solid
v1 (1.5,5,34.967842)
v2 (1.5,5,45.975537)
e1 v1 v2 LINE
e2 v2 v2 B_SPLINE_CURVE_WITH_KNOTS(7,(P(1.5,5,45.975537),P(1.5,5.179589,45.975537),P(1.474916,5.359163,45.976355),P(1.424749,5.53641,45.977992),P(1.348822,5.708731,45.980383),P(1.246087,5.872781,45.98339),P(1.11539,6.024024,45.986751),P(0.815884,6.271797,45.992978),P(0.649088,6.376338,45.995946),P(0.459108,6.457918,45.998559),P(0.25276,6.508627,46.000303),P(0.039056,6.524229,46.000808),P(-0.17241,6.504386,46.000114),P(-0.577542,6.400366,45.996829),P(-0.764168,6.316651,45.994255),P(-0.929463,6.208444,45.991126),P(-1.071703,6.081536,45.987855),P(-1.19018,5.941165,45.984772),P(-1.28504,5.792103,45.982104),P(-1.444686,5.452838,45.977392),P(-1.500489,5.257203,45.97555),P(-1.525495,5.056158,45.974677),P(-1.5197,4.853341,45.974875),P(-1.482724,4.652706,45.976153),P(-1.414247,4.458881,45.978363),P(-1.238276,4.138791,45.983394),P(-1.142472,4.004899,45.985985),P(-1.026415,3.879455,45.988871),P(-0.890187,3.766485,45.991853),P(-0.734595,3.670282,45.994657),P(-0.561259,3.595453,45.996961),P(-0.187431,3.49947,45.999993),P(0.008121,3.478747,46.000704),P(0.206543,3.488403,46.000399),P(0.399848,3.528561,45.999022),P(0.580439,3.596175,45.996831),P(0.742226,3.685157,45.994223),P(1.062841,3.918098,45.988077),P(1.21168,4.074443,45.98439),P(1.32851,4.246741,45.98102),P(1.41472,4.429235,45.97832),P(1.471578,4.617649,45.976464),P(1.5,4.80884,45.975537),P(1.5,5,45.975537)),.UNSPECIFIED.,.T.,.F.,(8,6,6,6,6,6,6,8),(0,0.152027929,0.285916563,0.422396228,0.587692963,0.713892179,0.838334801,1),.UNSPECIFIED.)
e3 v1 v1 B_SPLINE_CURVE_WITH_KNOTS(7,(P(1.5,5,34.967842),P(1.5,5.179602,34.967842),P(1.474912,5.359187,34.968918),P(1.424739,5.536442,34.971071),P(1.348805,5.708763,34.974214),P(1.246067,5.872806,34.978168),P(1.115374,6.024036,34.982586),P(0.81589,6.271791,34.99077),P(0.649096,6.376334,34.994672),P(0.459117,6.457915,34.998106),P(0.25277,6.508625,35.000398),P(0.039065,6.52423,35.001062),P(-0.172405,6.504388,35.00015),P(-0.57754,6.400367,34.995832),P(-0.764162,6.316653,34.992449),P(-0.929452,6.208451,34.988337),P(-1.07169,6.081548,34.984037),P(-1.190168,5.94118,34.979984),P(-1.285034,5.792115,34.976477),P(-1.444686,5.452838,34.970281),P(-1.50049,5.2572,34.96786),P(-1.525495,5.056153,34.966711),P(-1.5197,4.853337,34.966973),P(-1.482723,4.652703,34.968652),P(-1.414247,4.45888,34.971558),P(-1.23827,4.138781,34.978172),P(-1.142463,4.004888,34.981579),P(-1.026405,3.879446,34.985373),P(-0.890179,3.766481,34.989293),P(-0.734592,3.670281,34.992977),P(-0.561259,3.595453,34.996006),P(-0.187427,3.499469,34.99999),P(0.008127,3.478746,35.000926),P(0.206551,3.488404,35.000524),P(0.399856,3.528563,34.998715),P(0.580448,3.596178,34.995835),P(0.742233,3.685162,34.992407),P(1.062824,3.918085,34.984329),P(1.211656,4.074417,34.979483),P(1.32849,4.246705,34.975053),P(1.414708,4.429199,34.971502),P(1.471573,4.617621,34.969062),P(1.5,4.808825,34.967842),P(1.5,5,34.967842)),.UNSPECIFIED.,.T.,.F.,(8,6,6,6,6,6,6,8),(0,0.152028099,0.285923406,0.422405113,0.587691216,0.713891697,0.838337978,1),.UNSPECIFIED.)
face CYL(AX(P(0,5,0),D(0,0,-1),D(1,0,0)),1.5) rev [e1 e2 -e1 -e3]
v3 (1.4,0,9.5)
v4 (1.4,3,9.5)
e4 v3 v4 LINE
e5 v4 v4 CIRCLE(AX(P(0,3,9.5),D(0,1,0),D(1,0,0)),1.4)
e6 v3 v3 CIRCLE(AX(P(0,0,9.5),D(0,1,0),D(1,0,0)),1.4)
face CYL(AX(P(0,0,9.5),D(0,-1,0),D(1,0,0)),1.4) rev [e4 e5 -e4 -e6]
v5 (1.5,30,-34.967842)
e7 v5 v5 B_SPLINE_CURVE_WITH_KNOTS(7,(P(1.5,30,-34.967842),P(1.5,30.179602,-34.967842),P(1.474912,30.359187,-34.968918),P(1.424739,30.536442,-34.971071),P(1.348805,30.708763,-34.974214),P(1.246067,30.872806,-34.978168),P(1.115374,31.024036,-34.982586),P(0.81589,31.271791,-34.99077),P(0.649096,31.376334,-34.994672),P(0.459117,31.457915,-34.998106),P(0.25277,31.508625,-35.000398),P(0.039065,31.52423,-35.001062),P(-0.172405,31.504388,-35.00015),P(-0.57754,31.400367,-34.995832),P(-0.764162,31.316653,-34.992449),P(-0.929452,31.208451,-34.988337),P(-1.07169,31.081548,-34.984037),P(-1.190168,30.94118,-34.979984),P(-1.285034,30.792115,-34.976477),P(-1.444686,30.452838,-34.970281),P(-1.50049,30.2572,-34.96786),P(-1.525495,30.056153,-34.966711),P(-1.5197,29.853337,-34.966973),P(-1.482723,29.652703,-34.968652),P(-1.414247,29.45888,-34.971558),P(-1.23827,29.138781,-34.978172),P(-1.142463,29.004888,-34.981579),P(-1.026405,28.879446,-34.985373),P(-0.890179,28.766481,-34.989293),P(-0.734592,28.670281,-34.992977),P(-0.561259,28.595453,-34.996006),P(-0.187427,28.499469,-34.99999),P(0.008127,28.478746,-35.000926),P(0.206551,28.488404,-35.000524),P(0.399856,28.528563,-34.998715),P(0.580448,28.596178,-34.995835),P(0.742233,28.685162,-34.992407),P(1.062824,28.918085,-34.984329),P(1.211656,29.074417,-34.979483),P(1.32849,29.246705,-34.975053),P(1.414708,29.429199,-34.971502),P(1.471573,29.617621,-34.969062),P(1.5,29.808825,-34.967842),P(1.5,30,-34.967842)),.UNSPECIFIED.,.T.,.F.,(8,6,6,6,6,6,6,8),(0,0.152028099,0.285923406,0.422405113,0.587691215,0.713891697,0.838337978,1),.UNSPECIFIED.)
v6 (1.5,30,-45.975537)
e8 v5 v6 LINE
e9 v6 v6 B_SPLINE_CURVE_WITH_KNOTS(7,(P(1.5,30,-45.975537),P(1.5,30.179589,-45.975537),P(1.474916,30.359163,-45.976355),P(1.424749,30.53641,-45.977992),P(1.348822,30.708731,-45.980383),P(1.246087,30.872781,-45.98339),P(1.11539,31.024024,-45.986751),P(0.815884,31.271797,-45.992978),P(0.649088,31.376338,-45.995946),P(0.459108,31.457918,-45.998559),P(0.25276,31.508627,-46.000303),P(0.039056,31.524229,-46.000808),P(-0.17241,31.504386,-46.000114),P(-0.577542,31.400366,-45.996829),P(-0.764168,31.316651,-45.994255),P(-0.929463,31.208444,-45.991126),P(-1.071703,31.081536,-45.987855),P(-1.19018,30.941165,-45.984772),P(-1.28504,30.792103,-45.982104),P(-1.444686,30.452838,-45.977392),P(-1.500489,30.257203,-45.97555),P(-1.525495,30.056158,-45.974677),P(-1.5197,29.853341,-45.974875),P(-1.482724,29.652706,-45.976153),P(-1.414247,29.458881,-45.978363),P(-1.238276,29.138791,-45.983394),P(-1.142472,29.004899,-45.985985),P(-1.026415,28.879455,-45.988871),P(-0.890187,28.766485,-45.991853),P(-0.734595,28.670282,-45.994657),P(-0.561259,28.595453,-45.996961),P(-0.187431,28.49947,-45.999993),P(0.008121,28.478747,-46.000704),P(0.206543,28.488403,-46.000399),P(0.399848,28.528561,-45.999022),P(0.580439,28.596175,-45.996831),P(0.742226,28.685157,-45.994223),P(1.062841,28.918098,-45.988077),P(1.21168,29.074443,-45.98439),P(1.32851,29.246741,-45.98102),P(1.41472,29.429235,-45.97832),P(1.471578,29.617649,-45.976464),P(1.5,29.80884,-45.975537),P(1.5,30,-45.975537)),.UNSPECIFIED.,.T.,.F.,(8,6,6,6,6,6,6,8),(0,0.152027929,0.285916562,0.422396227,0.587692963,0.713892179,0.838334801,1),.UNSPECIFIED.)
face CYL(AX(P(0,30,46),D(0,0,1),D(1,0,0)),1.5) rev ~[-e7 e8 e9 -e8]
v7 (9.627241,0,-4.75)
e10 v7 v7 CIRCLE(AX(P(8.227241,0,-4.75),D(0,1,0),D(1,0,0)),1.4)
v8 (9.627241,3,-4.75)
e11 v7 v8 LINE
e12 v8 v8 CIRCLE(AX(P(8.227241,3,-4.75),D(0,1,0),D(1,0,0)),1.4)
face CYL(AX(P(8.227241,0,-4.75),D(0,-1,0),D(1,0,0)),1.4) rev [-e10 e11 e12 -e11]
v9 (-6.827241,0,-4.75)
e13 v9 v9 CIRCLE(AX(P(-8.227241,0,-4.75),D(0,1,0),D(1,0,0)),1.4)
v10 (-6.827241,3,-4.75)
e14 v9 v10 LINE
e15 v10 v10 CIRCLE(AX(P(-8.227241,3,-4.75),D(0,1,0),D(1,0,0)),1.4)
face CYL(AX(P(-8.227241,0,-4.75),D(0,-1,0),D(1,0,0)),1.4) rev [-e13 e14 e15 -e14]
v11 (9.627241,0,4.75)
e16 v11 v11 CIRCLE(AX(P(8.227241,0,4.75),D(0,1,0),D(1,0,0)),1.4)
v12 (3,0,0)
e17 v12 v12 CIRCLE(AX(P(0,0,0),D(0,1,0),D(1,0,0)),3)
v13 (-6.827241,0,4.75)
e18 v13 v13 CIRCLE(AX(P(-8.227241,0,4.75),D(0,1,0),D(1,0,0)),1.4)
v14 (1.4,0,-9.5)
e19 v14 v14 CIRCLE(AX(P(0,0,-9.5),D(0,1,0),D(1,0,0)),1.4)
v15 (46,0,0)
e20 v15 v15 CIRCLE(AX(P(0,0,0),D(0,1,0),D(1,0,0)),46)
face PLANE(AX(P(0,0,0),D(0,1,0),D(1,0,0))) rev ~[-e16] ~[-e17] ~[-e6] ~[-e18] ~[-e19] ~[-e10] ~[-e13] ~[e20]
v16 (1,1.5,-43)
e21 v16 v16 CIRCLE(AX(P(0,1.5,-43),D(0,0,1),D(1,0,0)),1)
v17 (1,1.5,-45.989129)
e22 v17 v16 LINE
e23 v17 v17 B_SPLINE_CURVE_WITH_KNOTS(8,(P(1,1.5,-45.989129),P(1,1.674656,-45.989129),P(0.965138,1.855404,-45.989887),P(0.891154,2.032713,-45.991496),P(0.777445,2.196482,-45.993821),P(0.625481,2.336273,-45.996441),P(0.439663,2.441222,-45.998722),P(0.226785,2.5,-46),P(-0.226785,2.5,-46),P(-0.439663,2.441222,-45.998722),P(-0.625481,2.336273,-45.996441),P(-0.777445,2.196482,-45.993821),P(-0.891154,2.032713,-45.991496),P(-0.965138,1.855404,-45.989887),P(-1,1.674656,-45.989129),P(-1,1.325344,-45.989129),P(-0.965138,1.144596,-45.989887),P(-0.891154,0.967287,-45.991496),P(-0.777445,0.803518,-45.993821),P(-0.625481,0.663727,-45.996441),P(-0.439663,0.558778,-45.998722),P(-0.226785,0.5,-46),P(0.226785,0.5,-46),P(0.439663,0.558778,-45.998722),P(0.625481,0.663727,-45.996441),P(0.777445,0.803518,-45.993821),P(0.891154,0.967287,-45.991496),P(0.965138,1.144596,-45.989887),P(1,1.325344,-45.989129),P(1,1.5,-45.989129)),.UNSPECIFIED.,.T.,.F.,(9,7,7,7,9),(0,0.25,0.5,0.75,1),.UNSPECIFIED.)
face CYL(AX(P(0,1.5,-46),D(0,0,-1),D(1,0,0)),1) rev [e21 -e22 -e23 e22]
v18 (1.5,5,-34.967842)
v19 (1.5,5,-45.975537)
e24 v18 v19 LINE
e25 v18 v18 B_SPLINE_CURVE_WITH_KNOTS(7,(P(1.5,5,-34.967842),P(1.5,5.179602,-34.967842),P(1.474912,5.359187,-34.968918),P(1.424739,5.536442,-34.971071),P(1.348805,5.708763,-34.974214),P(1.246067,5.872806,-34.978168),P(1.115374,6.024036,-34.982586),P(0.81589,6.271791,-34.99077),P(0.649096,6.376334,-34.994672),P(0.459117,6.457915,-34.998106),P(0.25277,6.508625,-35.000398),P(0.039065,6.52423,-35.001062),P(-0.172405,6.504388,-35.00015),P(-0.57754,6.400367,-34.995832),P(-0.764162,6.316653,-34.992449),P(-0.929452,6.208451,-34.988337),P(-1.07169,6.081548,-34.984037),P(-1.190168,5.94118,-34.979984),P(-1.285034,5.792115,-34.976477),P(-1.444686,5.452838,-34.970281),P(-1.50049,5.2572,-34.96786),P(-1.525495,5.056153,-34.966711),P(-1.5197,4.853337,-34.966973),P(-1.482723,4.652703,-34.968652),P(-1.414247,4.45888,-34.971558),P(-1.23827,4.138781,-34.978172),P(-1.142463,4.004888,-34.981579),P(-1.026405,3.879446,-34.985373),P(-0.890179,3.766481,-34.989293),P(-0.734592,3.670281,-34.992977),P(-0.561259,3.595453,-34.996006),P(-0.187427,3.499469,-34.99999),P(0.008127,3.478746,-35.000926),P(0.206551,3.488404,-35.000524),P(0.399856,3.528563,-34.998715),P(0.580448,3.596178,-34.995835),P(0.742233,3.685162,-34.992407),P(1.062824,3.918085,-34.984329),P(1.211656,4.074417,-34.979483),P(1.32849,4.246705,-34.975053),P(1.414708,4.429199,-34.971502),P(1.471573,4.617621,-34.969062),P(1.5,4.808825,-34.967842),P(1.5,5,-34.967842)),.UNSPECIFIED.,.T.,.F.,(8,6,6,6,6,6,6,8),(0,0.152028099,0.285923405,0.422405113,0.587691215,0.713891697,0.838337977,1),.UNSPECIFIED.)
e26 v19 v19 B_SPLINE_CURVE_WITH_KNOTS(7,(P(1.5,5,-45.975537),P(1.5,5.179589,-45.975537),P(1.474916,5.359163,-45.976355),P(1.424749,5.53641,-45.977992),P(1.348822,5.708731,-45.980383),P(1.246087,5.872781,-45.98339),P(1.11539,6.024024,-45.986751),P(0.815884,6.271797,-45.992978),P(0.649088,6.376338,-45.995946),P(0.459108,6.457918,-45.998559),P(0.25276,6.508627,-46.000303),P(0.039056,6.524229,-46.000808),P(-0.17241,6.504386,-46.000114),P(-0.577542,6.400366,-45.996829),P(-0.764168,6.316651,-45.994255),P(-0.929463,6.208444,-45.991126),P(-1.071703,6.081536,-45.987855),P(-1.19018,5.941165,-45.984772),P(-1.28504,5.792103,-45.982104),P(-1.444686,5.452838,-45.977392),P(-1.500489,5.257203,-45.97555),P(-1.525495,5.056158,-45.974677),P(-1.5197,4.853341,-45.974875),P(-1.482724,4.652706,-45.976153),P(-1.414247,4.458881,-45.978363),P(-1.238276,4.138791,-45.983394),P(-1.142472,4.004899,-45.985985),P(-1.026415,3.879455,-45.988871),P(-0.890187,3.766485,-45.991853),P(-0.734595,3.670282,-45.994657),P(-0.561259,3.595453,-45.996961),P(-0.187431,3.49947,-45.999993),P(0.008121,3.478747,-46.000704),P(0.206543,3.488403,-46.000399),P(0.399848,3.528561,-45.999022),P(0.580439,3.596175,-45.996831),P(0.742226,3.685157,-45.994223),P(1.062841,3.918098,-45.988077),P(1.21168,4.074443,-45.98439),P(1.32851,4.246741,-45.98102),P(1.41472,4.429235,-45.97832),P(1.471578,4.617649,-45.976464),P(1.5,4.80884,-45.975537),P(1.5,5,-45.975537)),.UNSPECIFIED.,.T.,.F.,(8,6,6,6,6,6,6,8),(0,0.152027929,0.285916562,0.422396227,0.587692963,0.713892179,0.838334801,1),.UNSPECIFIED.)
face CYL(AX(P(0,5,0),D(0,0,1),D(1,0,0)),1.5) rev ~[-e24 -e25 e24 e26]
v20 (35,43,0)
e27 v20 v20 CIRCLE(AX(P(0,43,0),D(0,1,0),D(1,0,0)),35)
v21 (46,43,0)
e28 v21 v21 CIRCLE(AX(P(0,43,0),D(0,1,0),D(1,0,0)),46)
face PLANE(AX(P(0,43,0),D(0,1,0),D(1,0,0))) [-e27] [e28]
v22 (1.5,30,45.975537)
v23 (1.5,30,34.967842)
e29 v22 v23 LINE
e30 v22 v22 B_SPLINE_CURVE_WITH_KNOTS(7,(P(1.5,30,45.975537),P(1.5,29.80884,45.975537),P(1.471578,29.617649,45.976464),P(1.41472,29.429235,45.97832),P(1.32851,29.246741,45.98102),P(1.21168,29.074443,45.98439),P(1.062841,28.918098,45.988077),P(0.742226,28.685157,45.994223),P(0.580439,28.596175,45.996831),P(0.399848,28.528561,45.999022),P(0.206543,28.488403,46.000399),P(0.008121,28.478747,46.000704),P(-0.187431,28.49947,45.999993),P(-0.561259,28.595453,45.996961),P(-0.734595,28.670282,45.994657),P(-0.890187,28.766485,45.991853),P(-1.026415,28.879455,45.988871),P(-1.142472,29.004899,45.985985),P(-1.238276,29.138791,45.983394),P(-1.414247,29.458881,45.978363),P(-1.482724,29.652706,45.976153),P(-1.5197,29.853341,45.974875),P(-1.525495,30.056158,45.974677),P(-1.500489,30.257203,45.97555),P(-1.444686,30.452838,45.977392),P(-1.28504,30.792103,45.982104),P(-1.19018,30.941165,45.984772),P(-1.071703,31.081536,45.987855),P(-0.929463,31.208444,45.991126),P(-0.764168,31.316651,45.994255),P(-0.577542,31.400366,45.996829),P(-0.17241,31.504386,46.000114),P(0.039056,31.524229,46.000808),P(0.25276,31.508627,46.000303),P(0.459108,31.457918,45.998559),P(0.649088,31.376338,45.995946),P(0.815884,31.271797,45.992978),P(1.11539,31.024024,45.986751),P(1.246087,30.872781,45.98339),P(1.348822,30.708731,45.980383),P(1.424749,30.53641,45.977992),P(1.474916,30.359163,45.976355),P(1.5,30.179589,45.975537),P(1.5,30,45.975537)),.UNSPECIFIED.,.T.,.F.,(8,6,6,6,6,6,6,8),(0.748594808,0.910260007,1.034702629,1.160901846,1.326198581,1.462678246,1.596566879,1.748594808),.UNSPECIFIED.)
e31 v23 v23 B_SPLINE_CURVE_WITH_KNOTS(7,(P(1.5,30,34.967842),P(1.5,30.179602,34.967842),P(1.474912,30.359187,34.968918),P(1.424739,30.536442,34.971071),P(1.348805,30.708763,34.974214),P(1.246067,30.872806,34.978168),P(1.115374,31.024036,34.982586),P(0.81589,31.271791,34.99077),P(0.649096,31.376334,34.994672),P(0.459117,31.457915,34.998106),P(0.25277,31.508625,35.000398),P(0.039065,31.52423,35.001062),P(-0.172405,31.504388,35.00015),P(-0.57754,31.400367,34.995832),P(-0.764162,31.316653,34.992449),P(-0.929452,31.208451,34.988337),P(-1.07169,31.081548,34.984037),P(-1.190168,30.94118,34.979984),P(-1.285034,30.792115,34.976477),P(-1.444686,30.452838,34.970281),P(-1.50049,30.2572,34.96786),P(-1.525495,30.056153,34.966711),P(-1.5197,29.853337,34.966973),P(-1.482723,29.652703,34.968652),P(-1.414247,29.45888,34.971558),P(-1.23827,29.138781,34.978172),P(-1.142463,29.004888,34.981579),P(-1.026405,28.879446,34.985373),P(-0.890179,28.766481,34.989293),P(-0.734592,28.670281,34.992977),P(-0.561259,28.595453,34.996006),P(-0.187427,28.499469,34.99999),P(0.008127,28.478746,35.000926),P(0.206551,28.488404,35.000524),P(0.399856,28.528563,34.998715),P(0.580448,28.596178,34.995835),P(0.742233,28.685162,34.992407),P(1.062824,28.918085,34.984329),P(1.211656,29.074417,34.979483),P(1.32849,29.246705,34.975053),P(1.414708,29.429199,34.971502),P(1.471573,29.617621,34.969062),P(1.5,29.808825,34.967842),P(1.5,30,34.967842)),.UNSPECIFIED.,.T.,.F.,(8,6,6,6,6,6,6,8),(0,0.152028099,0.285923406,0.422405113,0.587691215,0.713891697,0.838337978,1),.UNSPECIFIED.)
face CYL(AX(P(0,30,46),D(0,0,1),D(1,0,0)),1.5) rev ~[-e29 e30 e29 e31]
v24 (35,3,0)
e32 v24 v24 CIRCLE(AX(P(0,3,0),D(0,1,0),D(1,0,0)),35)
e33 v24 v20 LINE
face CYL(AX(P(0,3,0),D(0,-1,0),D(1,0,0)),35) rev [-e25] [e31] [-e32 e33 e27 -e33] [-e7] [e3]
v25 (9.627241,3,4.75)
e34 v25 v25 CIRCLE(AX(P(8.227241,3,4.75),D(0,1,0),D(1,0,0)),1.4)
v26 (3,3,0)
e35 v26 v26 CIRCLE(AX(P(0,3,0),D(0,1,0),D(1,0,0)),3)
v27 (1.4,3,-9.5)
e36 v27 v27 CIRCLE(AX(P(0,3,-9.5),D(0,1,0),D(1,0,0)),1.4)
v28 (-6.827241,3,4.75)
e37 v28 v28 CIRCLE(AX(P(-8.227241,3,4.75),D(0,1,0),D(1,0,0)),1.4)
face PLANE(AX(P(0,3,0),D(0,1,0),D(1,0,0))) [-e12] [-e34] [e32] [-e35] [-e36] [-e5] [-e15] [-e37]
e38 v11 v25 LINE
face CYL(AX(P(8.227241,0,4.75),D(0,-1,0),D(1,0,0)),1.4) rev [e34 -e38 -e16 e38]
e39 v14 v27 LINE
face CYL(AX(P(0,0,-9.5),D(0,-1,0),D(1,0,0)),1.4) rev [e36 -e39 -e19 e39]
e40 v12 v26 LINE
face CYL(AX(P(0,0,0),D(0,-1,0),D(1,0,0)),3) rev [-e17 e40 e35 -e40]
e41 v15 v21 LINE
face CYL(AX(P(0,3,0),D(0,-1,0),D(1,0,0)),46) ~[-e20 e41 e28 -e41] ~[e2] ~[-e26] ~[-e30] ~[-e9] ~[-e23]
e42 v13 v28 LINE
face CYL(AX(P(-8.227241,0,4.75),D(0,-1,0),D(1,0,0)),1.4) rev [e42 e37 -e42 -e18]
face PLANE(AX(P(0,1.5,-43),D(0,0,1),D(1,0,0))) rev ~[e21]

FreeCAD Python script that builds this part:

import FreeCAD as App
import Part
import Sketcher

V = App.Vector

doc = App.newDocument("Part")
body = doc.addObject("PartDesign::Body", "Body")

sketch1 = body.newObject("Sketcher::SketchObject", "Sketch")
sketch1.AttachmentSupport = (doc.getObject("XZ_Plane"), [""])
sketch1.MapMode = "FlatFace"
sketch1.addGeometry([
    Part.Circle(V(0, 0, 0), V(0, 0, 1), 46),
    Part.Circle(V(-8.227241, 4.75, 0), V(0, 0, 1), 1.4),
    Part.Circle(V(0, 9.5, 0), V(0, 0, 1), 1.4),
    Part.Circle(V(0, 0, 0), V(0, 0, 1), 3),
    Part.Circle(V(8.227241, 4.75, 0), V(0, 0, 1), 1.4),
    Part.Circle(V(-8.227241, -4.75, 0), V(0, 0, 1), 1.4),
    Part.Circle(V(8.227241, -4.75, 0), V(0, 0, 1), 1.4),
    Part.Circle(V(0, -9.5, 0), V(0, 0, 1), 1.4),
], False)
sketch1.addConstraint([
    Sketcher.Constraint("Coincident", 0, 3, -1, 1),
    Sketcher.Constraint("Coincident", 3, 3, -1, 1),
    Sketcher.Constraint("Equal", 1, 2),
    Sketcher.Constraint("Equal", 2, 4),
    Sketcher.Constraint("Equal", 4, 5),
    Sketcher.Constraint("Equal", 5, 6),
    Sketcher.Constraint("Equal", 6, 7),
    Sketcher.Constraint("Symmetric", 4, 3, 5, 3, -1, 1),
    Sketcher.Constraint("Symmetric", 1, 3, 6, 3, -1, 1),
    Sketcher.Constraint("Symmetric", 2, 3, 7, 3, -1, 1),
    Sketcher.Constraint("Symmetric", 1, 3, 4, 3, -2),
    Sketcher.Constraint("PointOnObject", 2, 3, -2),
    Sketcher.Constraint("Diameter", 0, 92.0),
    Sketcher.Constraint("Diameter", 3, 6.0),
    Sketcher.Constraint("Diameter", 1, 2.8),
    Sketcher.Constraint("DistanceY", -1, 1, 2, 3, 9.5),
    Sketcher.Constraint("DistanceY", 5, 3, 1, 3, 9.5),
    Sketcher.Constraint("DistanceX", 1, 3, -1, 1, 8.227241),
])
pad1 = body.newObject("PartDesign::Pad", "Pad")
pad1.Profile = sketch1
pad1.Length = 3
pad1.Reversed = True

sketch2 = body.newObject("Sketcher::SketchObject", "Sketch001")
sketch2.AttachmentSupport = (doc.getObject("XY_Plane"), [""])
sketch2.MapMode = "FlatFace"
sketch2.AttachmentOffset = App.Placement(V(0, 0, -46), App.Rotation())
sketch2.addGeometry(Part.Circle(V(0, 1.5, 0), V(0, 0, 1), 1), False)
sketch2.addConstraint([
    Sketcher.Constraint("PointOnObject", 0, 3, -2),
    Sketcher.Constraint("Diameter", 0, 2.0),
    Sketcher.Constraint("DistanceY", -1, 1, 0, 3, 1.5),
])
pocket1 = body.newObject("PartDesign::Pocket", "Pocket")
pocket1.Profile = sketch2
pocket1.Length = 3
pocket1.Reversed = True

sketch3 = body.newObject("Sketcher::SketchObject", "Sketch002")
sketch3.AttachmentSupport = (doc.getObject("XZ_Plane"), [""])
sketch3.MapMode = "FlatFace"
sketch3.AttachmentOffset = App.Placement(V(0, 0, -3), App.Rotation())
sketch3.addGeometry([
    Part.Circle(V(0, 0, 0), V(0, 0, 1), 46),
    Part.Circle(V(0, 0, 0), V(0, 0, 1), 35),
], False)
sketch3.addConstraint([
    Sketcher.Constraint("Coincident", 0, 3, -1, 1),
    Sketcher.Constraint("Coincident", 1, 3, -1, 1),
    Sketcher.Constraint("Diameter", 0, 92.0),
    Sketcher.Constraint("Diameter", 1, 70.0),
])
pad2 = body.newObject("PartDesign::Pad", "Pad001")
pad2.Profile = sketch3
pad2.Length = 40
pad2.Reversed = True

sketch4 = body.newObject("Sketcher::SketchObject", "Sketch003")
sketch4.AttachmentSupport = (doc.getObject("XY_Plane"), [""])
sketch4.MapMode = "FlatFace"
sketch4.AttachmentOffset = App.Placement(V(0, 0, 46), App.Rotation())
sketch4.addGeometry(Part.Circle(V(0, 30, 0), V(0, 0, 1), 1.5), False)
sketch4.addConstraint([
    Sketcher.Constraint("PointOnObject", 0, 3, -2),
    Sketcher.Constraint("Diameter", 0, 3.0),
    Sketcher.Constraint("DistanceY", -1, 1, 0, 3, 30.0),
])
pocket2 = body.newObject("PartDesign::Pocket", "Pocket001")
pocket2.Profile = sketch4
pocket2.Length = 108

sketch5 = body.newObject("Sketcher::SketchObject", "Sketch004")
sketch5.AttachmentSupport = (doc.getObject("XY_Plane"), [""])
sketch5.MapMode = "FlatFace"
sketch5.addGeometry(Part.Circle(V(0, 5, 0), V(0, 0, 1), 1.5), False)
sketch5.addConstraint([
    Sketcher.Constraint("PointOnObject", 0, 3, -2),
    Sketcher.Constraint("Diameter", 0, 3.0),
    Sketcher.Constraint("DistanceY", -1, 1, 0, 3, 5.0),
])
pocket3 = body.newObject("PartDesign::Pocket", "Pocket002")
pocket3.Profile = sketch5
pocket3.Type = "ThroughAll"
pocket3.Midplane = True

doc.recompute()
